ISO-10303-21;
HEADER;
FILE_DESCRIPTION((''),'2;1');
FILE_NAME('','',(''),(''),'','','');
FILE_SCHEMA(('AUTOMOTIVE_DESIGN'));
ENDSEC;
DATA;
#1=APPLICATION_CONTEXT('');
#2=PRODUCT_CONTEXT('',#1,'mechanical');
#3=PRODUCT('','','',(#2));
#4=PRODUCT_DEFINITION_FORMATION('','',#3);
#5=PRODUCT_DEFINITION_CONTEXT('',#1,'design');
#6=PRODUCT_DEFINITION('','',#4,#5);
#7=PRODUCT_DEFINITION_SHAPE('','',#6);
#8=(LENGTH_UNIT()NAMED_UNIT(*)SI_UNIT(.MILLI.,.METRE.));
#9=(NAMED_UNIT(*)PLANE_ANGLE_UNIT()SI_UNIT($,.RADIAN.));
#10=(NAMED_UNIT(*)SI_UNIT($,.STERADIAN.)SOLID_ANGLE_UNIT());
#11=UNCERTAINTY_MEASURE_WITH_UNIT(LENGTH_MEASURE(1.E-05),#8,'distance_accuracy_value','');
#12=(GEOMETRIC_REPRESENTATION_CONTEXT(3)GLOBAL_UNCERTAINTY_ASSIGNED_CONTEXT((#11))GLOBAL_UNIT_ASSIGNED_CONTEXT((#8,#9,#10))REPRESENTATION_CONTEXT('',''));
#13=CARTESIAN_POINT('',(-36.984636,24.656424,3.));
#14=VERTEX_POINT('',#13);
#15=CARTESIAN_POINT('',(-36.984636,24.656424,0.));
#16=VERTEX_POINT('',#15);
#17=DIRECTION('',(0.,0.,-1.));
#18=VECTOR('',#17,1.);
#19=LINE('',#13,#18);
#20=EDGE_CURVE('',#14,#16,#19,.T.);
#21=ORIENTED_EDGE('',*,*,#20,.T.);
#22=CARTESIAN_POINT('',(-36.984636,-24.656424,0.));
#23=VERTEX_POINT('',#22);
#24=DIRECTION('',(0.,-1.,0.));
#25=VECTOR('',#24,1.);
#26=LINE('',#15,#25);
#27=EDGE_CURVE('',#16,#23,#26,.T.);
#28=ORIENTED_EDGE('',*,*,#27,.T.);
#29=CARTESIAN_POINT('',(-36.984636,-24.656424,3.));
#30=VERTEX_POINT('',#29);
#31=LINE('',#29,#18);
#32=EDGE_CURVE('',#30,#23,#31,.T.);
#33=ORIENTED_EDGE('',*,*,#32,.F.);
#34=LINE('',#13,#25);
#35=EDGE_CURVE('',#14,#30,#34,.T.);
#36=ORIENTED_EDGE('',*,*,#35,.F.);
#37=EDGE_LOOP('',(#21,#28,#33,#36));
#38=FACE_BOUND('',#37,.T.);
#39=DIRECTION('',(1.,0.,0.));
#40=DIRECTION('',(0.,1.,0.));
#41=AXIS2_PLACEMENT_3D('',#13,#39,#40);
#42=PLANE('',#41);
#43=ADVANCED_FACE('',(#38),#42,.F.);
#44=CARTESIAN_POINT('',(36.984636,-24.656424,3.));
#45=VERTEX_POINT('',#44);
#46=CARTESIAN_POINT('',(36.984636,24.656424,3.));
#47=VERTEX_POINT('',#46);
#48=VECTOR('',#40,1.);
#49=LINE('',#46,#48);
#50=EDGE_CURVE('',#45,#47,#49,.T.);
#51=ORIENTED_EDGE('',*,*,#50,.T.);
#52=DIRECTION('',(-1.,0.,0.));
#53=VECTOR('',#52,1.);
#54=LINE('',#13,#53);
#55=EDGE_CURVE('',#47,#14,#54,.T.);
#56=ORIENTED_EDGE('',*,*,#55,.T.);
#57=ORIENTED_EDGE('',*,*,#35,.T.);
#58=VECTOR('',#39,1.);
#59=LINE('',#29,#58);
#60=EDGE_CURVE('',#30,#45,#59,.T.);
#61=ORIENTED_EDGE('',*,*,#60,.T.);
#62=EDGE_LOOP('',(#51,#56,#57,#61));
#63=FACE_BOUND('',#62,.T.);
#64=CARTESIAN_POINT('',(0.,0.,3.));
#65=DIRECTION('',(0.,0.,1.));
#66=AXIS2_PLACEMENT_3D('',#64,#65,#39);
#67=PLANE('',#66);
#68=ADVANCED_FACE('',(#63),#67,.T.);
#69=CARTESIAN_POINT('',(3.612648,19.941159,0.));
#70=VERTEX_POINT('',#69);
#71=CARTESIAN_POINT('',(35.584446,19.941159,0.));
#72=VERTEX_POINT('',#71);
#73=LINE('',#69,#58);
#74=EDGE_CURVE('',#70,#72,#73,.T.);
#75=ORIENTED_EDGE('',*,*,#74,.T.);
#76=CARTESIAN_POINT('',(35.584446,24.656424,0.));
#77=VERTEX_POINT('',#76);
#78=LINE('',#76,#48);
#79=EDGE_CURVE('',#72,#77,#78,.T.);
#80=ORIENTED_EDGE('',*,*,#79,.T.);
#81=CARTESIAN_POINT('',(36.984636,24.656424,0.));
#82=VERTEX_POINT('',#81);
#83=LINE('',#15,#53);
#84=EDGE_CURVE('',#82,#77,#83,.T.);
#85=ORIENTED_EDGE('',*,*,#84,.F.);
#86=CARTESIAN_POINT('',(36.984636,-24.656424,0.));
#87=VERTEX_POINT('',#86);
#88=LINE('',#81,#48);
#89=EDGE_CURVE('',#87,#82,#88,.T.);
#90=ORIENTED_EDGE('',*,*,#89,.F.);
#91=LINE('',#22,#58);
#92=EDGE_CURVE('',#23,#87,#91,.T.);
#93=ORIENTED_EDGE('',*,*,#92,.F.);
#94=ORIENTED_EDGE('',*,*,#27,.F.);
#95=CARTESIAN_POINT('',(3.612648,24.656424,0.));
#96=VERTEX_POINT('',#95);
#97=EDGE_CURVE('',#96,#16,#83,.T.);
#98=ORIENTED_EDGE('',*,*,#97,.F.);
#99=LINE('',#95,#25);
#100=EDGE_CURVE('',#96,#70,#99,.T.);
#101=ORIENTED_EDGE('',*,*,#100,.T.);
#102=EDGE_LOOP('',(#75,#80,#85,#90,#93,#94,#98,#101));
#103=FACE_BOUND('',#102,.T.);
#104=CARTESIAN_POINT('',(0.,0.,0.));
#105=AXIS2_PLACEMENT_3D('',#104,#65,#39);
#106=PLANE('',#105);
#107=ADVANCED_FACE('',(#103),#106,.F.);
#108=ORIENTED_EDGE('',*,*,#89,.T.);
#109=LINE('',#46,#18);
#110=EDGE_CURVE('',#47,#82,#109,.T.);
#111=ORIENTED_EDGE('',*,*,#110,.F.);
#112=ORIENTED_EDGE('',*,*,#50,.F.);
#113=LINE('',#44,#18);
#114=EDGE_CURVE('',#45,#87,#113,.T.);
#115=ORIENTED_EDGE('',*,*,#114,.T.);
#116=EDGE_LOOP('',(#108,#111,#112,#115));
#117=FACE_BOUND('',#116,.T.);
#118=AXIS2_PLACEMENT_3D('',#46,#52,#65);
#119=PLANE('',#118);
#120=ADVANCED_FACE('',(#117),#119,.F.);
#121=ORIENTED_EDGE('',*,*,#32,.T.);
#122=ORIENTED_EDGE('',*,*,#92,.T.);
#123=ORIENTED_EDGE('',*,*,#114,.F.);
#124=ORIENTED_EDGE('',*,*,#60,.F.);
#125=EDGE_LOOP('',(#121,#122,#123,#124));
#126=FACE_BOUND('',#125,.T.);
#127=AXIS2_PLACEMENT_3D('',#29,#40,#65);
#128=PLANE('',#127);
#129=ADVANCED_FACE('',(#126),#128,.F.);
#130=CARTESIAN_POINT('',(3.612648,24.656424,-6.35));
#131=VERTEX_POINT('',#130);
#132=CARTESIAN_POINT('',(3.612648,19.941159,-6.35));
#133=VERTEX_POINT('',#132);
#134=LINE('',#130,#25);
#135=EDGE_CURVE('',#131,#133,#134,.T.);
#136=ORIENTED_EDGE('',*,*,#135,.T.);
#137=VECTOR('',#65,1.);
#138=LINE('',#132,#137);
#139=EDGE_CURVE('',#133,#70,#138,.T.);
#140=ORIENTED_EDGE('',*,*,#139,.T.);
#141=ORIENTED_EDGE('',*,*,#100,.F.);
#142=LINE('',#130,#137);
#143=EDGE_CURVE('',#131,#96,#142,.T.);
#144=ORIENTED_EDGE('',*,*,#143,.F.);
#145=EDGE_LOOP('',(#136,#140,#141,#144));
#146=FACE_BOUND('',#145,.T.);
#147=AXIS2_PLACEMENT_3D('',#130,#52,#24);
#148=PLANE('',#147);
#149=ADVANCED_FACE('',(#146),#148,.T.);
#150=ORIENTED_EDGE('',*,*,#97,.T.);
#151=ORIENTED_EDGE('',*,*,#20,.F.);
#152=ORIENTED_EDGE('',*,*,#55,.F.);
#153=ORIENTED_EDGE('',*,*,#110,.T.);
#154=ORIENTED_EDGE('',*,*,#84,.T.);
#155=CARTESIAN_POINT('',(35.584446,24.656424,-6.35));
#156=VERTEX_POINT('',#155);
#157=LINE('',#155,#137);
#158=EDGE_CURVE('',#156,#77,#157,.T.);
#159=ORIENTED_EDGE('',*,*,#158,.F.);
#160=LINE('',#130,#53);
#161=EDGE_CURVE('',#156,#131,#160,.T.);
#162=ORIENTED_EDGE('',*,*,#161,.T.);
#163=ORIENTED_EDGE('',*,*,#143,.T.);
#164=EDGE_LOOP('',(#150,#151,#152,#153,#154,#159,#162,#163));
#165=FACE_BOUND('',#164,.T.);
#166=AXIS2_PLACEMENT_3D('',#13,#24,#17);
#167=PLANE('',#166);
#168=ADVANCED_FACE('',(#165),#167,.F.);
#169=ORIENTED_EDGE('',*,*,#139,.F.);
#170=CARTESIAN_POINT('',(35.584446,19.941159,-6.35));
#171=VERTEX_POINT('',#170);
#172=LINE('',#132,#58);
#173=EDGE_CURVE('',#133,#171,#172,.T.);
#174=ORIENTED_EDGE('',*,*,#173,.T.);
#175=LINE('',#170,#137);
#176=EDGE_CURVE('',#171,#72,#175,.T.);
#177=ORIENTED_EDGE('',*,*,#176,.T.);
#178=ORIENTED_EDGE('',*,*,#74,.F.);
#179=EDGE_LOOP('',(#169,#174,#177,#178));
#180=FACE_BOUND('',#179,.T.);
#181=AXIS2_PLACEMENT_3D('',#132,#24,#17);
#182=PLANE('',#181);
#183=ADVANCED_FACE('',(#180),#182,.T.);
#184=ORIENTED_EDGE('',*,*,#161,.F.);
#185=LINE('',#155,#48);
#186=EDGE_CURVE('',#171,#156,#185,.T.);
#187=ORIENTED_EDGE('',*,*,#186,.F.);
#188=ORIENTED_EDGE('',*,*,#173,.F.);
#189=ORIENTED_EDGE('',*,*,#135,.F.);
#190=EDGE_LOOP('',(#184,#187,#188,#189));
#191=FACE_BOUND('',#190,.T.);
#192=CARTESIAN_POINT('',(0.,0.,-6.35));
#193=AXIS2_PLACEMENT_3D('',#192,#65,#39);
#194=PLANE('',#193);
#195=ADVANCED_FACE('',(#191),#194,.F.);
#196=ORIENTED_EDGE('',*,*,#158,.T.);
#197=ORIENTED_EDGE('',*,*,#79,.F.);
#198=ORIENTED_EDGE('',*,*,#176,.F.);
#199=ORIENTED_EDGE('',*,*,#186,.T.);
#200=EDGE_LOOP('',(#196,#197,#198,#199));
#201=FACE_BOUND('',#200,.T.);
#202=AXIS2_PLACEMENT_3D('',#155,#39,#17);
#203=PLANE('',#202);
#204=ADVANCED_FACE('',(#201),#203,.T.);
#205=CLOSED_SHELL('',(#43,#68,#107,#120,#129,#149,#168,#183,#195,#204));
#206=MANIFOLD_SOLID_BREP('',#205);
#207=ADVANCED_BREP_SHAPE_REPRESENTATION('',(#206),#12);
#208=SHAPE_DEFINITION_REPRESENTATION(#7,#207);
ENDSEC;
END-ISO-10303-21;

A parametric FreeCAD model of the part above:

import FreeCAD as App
import Part
import Sketcher

V = App.Vector


def add_polygon(sketch, points):
    """Adds a closed chain of lines whose ends are joined by coincident constraints."""
    first, n = sketch.GeometryCount, len(points)
    for a, b in zip(points, points[1:] + points[:1]):
        sketch.addGeometry(Part.LineSegment(App.Vector(*a, 0), App.Vector(*b, 0)), False)
    for i in range(n):
        sketch.addConstraint(Sketcher.Constraint("Coincident", first + i, 2, first + (i + 1) % n, 1))

doc = App.newDocument("Part")
body = doc.addObject("PartDesign::Body", "Body")

sketch1 = body.newObject("Sketcher::SketchObject", "Sketch")
sketch1.AttachmentSupport = (doc.getObject("XY_Plane"), [""])
sketch1.MapMode = "FlatFace"
add_polygon(sketch1, [(-37, 25), (-37, -25), (37, -25), (37, 25)])
sketch1.addConstraint([
    Sketcher.Constraint("Vertical", 0),
    Sketcher.Constraint("Horizontal", 1),
    Sketcher.Constraint("Vertical", 2),
    Sketcher.Constraint("Horizontal", 3),
    Sketcher.Constraint("Symmetric", 0, 2, 2, 2, -1, 1),
    Sketcher.Constraint("DistanceX", 1, 1, 1, 2, 73.969271),
    Sketcher.Constraint("DistanceY", 0, 2, 0, 1, 49.312847),
])
pad1 = body.newObject("PartDesign::Pad", "Pad")
pad1.Profile = sketch1
pad1.Length = 3

sketch2 = body.newObject("Sketcher::SketchObject", "Sketch001")
sketch2.AttachmentSupport = (doc.getObject("XY_Plane"), [""])
sketch2.MapMode = "FlatFace"
add_polygon(sketch2, [(3.6, 24.7), (3.6, 19.9), (35.6, 19.9), (35.6, 24.7)])
sketch2.addConstraint([
    Sketcher.Constraint("Vertical", 0),
    Sketcher.Constraint("Horizontal", 1),
    Sketcher.Constraint("Vertical", 2),
    Sketcher.Constraint("Horizontal", 3),
    Sketcher.Constraint("DistanceX", 1, 1, 1, 2, 31.971798),
    Sketcher.Constraint("DistanceY", 0, 2, 0, 1, 4.715265),
    Sketcher.Constraint("DistanceY", -1, 1, 0, 2, 19.941159),
    Sketcher.Constraint("DistanceX", -1, 1, 0, 2, 3.612648),
])
pad2 = body.newObject("PartDesign::Pad", "Pad001")
pad2.Profile = sketch2
pad2.Length = 6.35
pad2.Reversed = True

doc.recompute()
